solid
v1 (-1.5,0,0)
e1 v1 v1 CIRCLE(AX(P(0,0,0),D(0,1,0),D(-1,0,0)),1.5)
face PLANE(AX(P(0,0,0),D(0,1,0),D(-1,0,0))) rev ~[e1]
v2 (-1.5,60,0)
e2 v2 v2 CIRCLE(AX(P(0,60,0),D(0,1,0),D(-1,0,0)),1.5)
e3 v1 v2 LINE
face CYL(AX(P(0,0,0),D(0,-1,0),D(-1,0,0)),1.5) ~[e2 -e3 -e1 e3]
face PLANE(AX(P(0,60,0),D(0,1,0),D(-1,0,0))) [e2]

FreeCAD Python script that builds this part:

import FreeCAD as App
import Part
import Sketcher
from FreeCAD import Vector
Q = App.Units.Quantity

doc = App.newDocument("Part")
body = doc.addObject("PartDesign::Body", "Body")

sketch1 = body.newObject("Sketcher::SketchObject", "Sketch")
sketch1.AttachmentSupport = (doc.getObject("XZ_Plane"), [""])
sketch1.MapMode = "FlatFace"
sketch1.addGeometry(Part.Circle(Vector(0, 0, 0), Vector(0, 0, 1), 1.5), False)
sketch1.addConstraint([
    Sketcher.Constraint("Coincident", 0, 3, -1, 1),
    Sketcher.Constraint("Diameter", 0, Q("3 mm")),
])
pad1 = body.newObject("PartDesign::Pad", "Pad")
pad1.Profile = sketch1
pad1.Length = 60
pad1.Reversed = True

doc.recompute()
